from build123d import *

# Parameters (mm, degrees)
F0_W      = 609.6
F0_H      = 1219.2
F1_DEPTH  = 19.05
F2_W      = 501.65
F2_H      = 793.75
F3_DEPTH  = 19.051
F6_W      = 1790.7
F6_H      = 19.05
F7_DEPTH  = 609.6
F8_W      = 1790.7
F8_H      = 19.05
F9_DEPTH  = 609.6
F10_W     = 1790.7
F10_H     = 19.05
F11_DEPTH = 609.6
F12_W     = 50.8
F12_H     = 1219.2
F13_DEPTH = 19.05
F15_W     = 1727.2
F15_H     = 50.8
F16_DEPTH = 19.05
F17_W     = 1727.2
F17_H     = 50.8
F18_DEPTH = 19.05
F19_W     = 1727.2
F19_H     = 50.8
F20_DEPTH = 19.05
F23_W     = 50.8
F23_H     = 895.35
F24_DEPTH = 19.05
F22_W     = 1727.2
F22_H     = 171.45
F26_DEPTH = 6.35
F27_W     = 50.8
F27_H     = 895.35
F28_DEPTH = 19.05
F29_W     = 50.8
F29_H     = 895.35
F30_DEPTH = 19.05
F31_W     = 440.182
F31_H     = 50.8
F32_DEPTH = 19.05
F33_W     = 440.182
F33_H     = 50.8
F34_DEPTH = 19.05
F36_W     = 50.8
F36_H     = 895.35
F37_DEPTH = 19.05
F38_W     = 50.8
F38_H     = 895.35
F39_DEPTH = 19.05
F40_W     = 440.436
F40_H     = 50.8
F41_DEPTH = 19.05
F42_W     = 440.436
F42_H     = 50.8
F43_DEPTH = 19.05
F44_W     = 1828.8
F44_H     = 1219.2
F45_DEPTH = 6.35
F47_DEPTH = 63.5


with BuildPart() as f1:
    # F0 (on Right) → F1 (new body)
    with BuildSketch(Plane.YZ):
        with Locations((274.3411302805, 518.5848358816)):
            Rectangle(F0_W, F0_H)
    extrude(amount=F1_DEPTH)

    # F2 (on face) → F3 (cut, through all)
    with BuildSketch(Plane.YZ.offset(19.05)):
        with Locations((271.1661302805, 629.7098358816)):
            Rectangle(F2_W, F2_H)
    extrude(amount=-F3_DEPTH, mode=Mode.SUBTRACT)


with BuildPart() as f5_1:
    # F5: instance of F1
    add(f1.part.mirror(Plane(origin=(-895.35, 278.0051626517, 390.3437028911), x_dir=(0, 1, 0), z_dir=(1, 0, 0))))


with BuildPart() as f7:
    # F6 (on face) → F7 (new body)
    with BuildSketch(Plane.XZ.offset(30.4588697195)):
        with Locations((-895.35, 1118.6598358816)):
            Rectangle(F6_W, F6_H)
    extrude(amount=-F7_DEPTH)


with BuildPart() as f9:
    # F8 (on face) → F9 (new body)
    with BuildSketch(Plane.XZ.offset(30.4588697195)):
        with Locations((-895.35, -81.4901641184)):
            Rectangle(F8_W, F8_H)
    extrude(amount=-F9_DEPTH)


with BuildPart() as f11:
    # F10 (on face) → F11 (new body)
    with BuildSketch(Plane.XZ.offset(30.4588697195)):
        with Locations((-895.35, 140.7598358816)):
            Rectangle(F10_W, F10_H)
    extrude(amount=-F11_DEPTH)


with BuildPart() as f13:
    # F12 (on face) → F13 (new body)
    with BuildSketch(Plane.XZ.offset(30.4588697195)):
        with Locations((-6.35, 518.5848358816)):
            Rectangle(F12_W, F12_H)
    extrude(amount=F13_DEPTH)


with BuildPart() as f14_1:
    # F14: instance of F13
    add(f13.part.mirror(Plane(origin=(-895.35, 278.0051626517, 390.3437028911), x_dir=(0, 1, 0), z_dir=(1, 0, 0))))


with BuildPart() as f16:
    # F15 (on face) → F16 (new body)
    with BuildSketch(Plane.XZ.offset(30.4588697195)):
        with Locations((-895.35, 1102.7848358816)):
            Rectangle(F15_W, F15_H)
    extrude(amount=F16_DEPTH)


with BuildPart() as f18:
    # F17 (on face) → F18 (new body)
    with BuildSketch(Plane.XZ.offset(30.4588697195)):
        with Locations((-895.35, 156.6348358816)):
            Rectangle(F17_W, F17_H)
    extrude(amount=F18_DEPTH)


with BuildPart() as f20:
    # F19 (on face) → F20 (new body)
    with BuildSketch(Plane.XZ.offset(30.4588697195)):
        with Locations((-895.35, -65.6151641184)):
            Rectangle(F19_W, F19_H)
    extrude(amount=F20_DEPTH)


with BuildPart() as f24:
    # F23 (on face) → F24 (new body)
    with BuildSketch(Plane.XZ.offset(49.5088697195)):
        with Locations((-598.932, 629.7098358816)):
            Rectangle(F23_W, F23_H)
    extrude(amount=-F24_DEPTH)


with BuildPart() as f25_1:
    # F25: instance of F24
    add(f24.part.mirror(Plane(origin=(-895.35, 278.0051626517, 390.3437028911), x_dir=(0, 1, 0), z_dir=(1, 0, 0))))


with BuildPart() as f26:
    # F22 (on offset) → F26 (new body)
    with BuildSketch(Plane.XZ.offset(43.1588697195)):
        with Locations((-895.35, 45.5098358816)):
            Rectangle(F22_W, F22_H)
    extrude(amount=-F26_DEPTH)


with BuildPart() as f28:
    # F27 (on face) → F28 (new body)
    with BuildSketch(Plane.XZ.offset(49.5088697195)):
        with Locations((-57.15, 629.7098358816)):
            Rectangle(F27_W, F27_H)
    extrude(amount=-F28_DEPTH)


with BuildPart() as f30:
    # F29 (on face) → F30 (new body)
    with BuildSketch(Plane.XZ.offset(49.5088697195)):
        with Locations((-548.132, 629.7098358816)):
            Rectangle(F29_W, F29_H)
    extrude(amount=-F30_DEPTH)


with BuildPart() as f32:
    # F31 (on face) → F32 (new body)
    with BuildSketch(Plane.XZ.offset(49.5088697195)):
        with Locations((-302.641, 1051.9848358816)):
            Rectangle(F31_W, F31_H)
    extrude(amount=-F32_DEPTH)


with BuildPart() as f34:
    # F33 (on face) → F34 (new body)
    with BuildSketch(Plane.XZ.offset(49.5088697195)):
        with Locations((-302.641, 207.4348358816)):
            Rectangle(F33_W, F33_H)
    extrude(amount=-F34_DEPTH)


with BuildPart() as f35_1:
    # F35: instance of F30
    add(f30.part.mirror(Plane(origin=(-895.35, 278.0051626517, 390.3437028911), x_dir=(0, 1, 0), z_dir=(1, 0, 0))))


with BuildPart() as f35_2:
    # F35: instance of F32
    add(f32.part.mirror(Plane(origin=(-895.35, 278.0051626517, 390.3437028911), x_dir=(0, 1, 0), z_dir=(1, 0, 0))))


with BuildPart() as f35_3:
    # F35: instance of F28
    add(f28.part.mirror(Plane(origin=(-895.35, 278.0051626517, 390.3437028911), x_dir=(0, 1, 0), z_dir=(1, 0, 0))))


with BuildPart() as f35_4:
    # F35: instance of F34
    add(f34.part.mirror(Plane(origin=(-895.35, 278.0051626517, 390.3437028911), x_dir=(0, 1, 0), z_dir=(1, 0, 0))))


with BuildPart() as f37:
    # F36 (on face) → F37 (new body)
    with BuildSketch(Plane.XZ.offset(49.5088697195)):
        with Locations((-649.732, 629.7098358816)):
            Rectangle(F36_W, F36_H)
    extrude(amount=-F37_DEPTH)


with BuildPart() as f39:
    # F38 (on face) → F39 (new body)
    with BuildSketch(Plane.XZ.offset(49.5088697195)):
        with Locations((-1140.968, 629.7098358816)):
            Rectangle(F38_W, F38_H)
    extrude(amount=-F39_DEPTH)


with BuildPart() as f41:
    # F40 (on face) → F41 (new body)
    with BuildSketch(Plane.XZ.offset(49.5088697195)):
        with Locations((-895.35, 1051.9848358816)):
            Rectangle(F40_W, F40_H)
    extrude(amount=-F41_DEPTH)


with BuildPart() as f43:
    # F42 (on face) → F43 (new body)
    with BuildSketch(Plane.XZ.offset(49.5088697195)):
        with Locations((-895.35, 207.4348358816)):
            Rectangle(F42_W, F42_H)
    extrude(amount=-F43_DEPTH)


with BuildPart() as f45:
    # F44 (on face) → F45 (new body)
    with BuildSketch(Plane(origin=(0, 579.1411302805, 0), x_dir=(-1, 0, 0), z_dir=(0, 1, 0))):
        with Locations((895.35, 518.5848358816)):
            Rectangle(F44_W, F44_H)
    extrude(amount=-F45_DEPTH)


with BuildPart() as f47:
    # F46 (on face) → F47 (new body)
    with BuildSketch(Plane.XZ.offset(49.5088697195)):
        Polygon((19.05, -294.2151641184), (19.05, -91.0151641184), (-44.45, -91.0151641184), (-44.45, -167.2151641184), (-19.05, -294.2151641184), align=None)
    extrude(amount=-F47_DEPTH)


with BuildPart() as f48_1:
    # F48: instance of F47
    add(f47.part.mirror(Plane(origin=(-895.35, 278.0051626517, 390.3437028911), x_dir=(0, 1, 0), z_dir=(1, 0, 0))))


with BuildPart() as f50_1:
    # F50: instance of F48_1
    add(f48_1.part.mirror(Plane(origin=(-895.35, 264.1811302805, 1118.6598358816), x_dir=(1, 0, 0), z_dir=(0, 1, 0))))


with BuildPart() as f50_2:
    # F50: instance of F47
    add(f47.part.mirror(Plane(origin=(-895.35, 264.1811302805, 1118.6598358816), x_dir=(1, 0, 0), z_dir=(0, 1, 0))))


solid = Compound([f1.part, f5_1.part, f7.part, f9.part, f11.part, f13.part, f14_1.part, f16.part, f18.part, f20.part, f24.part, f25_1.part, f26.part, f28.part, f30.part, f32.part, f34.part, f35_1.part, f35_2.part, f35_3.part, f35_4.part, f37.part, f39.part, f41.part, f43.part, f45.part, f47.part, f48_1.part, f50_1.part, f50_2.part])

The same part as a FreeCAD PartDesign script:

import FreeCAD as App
import Part
import Sketcher

V = App.Vector
Q = App.Units.Quantity


def add_polygon(sketch, points):
    """Adds a closed chain of lines whose ends are joined by coincident constraints."""
    first, n = sketch.GeometryCount, len(points)
    for a, b in zip(points, points[1:] + points[:1]):
        sketch.addGeometry(Part.LineSegment(App.Vector(*a, 0), App.Vector(*b, 0)), False)
    for i in range(n):
        sketch.addConstraint(Sketcher.Constraint("Coincident", first + i, 2, first + (i + 1) % n, 1))

doc = App.newDocument("Part")
body = doc.addObject("PartDesign::Body", "Body")

sketch1 = body.newObject("Sketcher::SketchObject", "Sketch")
sketch1.AttachmentSupport = (doc.getObject("YZ_Plane"), [""])
sketch1.MapMode = "FlatFace"
add_polygon(sketch1, [(-30.45887, 1128.184836), (-30.45887, -91.015164), (579.14113, -91.015164), (579.14113, 1128.184836)])
sketch1.addConstraint(Sketcher.Constraint("Vertical", 0))
sketch1.addConstraint(Sketcher.Constraint("Horizontal", 1))
sketch1.addConstraint(Sketcher.Constraint("Vertical", 2))
sketch1.addConstraint(Sketcher.Constraint("Horizontal", 3))
sketch1.addConstraint(Sketcher.Constraint("DistanceX", 1, 1, 1, 2, Q("24 in")))
sketch1.addConstraint(Sketcher.Constraint("DistanceY", 0, 2, 0, 1, Q("48 in")))
sketch1.addConstraint(Sketcher.Constraint("DistanceX", 0, 2, -1, 1, 30.45887))
sketch1.addConstraint(Sketcher.Constraint("DistanceY", 0, 2, -1, 1, 91.015164))
pad1 = body.newObject("PartDesign::Pad", "Pad")
pad1.Profile = sketch1
pad1.Length = Q("0.75 in")

sketch2 = body.newObject("Sketcher::SketchObject", "Sketch001")
sketch2.AttachmentSupport = (doc.getObject("YZ_Plane"), [""])
sketch2.MapMode = "FlatFace"
sketch2.AttachmentOffset = App.Placement(V(0, 0, 0.75 * 25.4), App.Rotation())
add_polygon(sketch2, [(20.34113, 1026.584836), (20.34113, 232.834836), (521.99113, 232.834836), (521.99113, 1026.584836)])
sketch2.addConstraint(Sketcher.Constraint("Vertical", 0))
sketch2.addConstraint(Sketcher.Constraint("Horizontal", 1))
sketch2.addConstraint(Sketcher.Constraint("Vertical", 2))
sketch2.addConstraint(Sketcher.Constraint("Horizontal", 3))
sketch2.addConstraint(Sketcher.Constraint("DistanceX", 1, 1, 1, 2, Q("19.75 in")))
sketch2.addConstraint(Sketcher.Constraint("DistanceY", 0, 2, 0, 1, Q("31.25 in")))
sketch2.addConstraint(Sketcher.Constraint("DistanceX", -1, 1, 0, 2, 20.34113))
sketch2.addConstraint(Sketcher.Constraint("DistanceY", -1, 1, 0, 2, 232.834836))
pocket1 = body.newObject("PartDesign::Pocket", "Pocket")
pocket1.Profile = sketch2
pocket1.Type = "ThroughAll"
body2 = doc.addObject("PartDesign::Body", "Body001")
doc.recompute()

mirroring = doc.addObject("Part::Mirroring", "Mirroring")
mirroring.Source = body
mirroring.Base = V(-895.35, 278.005163, 390.343703)
mirroring.Normal = V(1, 0, 0)
body2.BaseFeature = mirroring
doc.recompute()
body3 = doc.addObject("PartDesign::Body", "Body002")

sketch3 = body3.newObject("Sketcher::SketchObject", "Sketch002")
sketch3.AttachmentSupport = (doc.getObject("XZ_Plane002"), [""])
sketch3.MapMode = "FlatFace"
sketch3.AttachmentOffset = App.Placement(V(0, 0, 30.45887), App.Rotation())
add_polygon(sketch3, [(-1790.7, 1128.184836), (-1790.7, 1109.134836), (0, 1109.134836), (0, 1128.184836)])
sketch3.addConstraint(Sketcher.Constraint("Vertical", 0))
sketch3.addConstraint(Sketcher.Constraint("Horizontal", 1))
sketch3.addConstraint(Sketcher.Constraint("Vertical", 2))
sketch3.addConstraint(Sketcher.Constraint("Horizontal", 3))
sketch3.addConstraint(Sketcher.Constraint("PointOnObject", 1, 2, -2))
sketch3.addConstraint(Sketcher.Constraint("DistanceX", 1, 1, 1, 2, Q("70.5 in")))
sketch3.addConstraint(Sketcher.Constraint("DistanceY", 0, 2, 0, 1, Q("0.75 in")))
sketch3.addConstraint(Sketcher.Constraint("DistanceY", -1, 1, 0, 2, 1109.134836))
pad2 = body3.newObject("PartDesign::Pad", "Pad001")
pad2.Profile = sketch3
pad2.Length = Q("24 in")
pad2.Reversed = True
body4 = doc.addObject("PartDesign::Body", "Body003")

sketch4 = body4.newObject("Sketcher::SketchObject", "Sketch003")
sketch4.AttachmentSupport = (doc.getObject("XZ_Plane003"), [""])
sketch4.MapMode = "FlatFace"
sketch4.AttachmentOffset = App.Placement(V(0, 0, 30.45887), App.Rotation())
add_polygon(sketch4, [(-1790.7, -71.965164), (-1790.7, -91.015164), (0, -91.015164), (0, -71.965164)])
sketch4.addConstraint(Sketcher.Constraint("Vertical", 0))
sketch4.addConstraint(Sketcher.Constraint("Horizontal", 1))
sketch4.addConstraint(Sketcher.Constraint("Vertical", 2))
sketch4.addConstraint(Sketcher.Constraint("Horizontal", 3))
sketch4.addConstraint(Sketcher.Constraint("PointOnObject", 1, 2, -2))
sketch4.addConstraint(Sketcher.Constraint("DistanceX", 1, 1, 1, 2, Q("70.5 in")))
sketch4.addConstraint(Sketcher.Constraint("DistanceY", 0, 2, 0, 1, Q("0.75 in")))
sketch4.addConstraint(Sketcher.Constraint("DistanceY", 0, 2, -1, 1, 91.015164))
pad3 = body4.newObject("PartDesign::Pad", "Pad002")
pad3.Profile = sketch4
pad3.Length = Q("24 in")
pad3.Reversed = True
body5 = doc.addObject("PartDesign::Body", "Body004")

sketch5 = body5.newObject("Sketcher::SketchObject", "Sketch004")
sketch5.AttachmentSupport = (doc.getObject("XZ_Plane004"), [""])
sketch5.MapMode = "FlatFace"
sketch5.AttachmentOffset = App.Placement(V(0, 0, 30.45887), App.Rotation())
add_polygon(sketch5, [(-1790.7, 150.284836), (-1790.7, 131.234836), (0, 131.234836), (0, 150.284836)])
sketch5.addConstraint(Sketcher.Constraint("Vertical", 0))
sketch5.addConstraint(Sketcher.Constraint("Horizontal", 1))
sketch5.addConstraint(Sketcher.Constraint("Vertical", 2))
sketch5.addConstraint(Sketcher.Constraint("Horizontal", 3))
sketch5.addConstraint(Sketcher.Constraint("PointOnObject", 1, 2, -2))
sketch5.addConstraint(Sketcher.Constraint("DistanceX", 1, 1, 1, 2, Q("70.5 in")))
sketch5.addConstraint(Sketcher.Constraint("DistanceY", 0, 2, 0, 1, Q("0.75 in")))
sketch5.addConstraint(Sketcher.Constraint("DistanceY", -1, 1, 0, 2, 131.234836))
pad4 = body5.newObject("PartDesign::Pad", "Pad003")
pad4.Profile = sketch5
pad4.Length = Q("24 in")
pad4.Reversed = True
body6 = doc.addObject("PartDesign::Body", "Body005")

sketch6 = body6.newObject("Sketcher::SketchObject", "Sketch005")
sketch6.AttachmentSupport = (doc.getObject("XZ_Plane005"), [""])
sketch6.MapMode = "FlatFace"
sketch6.AttachmentOffset = App.Placement(V(0, 0, 30.45887), App.Rotation())
add_polygon(sketch6, [(-31.75, 1128.184836), (-31.75, -91.015164), (19.05, -91.015164), (19.05, 1128.184836)])
sketch6.addConstraint(Sketcher.Constraint("Vertical", 0))
sketch6.addConstraint(Sketcher.Constraint("Horizontal", 1))
sketch6.addConstraint(Sketcher.Constraint("Vertical", 2))
sketch6.addConstraint(Sketcher.Constraint("Horizontal", 3))
sketch6.addConstraint(Sketcher.Constraint("DistanceX", 1, 1, 1, 2, Q("2 in")))
sketch6.addConstraint(Sketcher.Constraint("DistanceY", 0, 2, 0, 1, Q("48 in")))
sketch6.addConstraint(Sketcher.Constraint("DistanceX", 0, 2, -1, 1, Q("1.25 in")))
sketch6.addConstraint(Sketcher.Constraint("DistanceY", 0, 2, -1, 1, 91.015164))
pad5 = body6.newObject("PartDesign::Pad", "Pad004")
pad5.Profile = sketch6
pad5.Length = Q("0.75 in")
body7 = doc.addObject("PartDesign::Body", "Body006")
doc.recompute()

mirroring2 = doc.addObject("Part::Mirroring", "Mirroring001")
mirroring2.Source = body6
mirroring2.Base = V(-895.35, 278.005163, 390.343703)
mirroring2.Normal = V(1, 0, 0)
body7.BaseFeature = mirroring2
doc.recompute()
body8 = doc.addObject("PartDesign::Body", "Body007")

sketch7 = body8.newObject("Sketcher::SketchObject", "Sketch006")
sketch7.AttachmentSupport = (doc.getObject("XZ_Plane007"), [""])
sketch7.MapMode = "FlatFace"
sketch7.AttachmentOffset = App.Placement(V(0, 0, 30.45887), App.Rotation())
add_polygon(sketch7, [(-1758.95, 1128.184836), (-1758.95, 1077.384836), (-31.75, 1077.384836), (-31.75, 1128.184836)])
sketch7.addConstraint(Sketcher.Constraint("Vertical", 0))
sketch7.addConstraint(Sketcher.Constraint("Horizontal", 1))
sketch7.addConstraint(Sketcher.Constraint("Vertical", 2))
sketch7.addConstraint(Sketcher.Constraint("Horizontal", 3))
sketch7.addConstraint(Sketcher.Constraint("DistanceX", 1, 1, 1, 2, Q("68 in")))
sketch7.addConstraint(Sketcher.Constraint("DistanceY", 0, 2, 0, 1, Q("2 in")))
sketch7.addConstraint(Sketcher.Constraint("DistanceX", 0, 2, -1, 1, Q("69.25 in")))
sketch7.addConstraint(Sketcher.Constraint("DistanceY", -1, 1, 0, 2, 1077.384836))
pad6 = body8.newObject("PartDesign::Pad", "Pad005")
pad6.Profile = sketch7
pad6.Length = Q("0.75 in")
body9 = doc.addObject("PartDesign::Body", "Body008")

sketch8 = body9.newObject("Sketcher::SketchObject", "Sketch007")
sketch8.AttachmentSupport = (doc.getObject("XZ_Plane008"), [""])
sketch8.MapMode = "FlatFace"
sketch8.AttachmentOffset = App.Placement(V(0, 0, 30.45887), App.Rotation())
add_polygon(sketch8, [(-1758.95, 182.034836), (-1758.95, 131.234836), (-31.75, 131.234836), (-31.75, 182.034836)])
sketch8.addConstraint(Sketcher.Constraint("Vertical", 0))
sketch8.addConstraint(Sketcher.Constraint("Horizontal", 1))
sketch8.addConstraint(Sketcher.Constraint("Vertical", 2))
sketch8.addConstraint(Sketcher.Constraint("Horizontal", 3))
sketch8.addConstraint(Sketcher.Constraint("DistanceX", 1, 1, 1, 2, Q("68 in")))
sketch8.addConstraint(Sketcher.Constraint("DistanceY", 0, 2, 0, 1, Q("2 in")))
sketch8.addConstraint(Sketcher.Constraint("DistanceX", 0, 2, -1, 1, Q("69.25 in")))
sketch8.addConstraint(Sketcher.Constraint("DistanceY", -1, 1, 0, 2, 131.234836))
pad7 = body9.newObject("PartDesign::Pad", "Pad006")
pad7.Profile = sketch8
pad7.Length = Q("0.75 in")
body10 = doc.addObject("PartDesign::Body", "Body009")

sketch9 = body10.newObject("Sketcher::SketchObject", "Sketch008")
sketch9.AttachmentSupport = (doc.getObject("XZ_Plane009"), [""])
sketch9.MapMode = "FlatFace"
sketch9.AttachmentOffset = App.Placement(V(0, 0, 30.45887), App.Rotation())
add_polygon(sketch9, [(-1758.95, -40.215164), (-1758.95, -91.015164), (-31.75, -91.015164), (-31.75, -40.215164)])
sketch9.addConstraint(Sketcher.Constraint("Vertical", 0))
sketch9.addConstraint(Sketcher.Constraint("Horizontal", 1))
sketch9.addConstraint(Sketcher.Constraint("Vertical", 2))
sketch9.addConstraint(Sketcher.Constraint("Horizontal", 3))
sketch9.addConstraint(Sketcher.Constraint("DistanceX", 1, 1, 1, 2, Q("68 in")))
sketch9.addConstraint(Sketcher.Constraint("DistanceY", 0, 2, 0, 1, Q("2 in")))
sketch9.addConstraint(Sketcher.Constraint("DistanceX", 0, 2, -1, 1, Q("69.25 in")))
sketch9.addConstraint(Sketcher.Constraint("DistanceY", 0, 2, -1, 1, 91.015164))
pad8 = body10.newObject("PartDesign::Pad", "Pad007")
pad8.Profile = sketch9
pad8.Length = Q("0.75 in")
body11 = doc.addObject("PartDesign::Body", "Body010")

sketch10 = body11.newObject("Sketcher::SketchObject", "Sketch009")
sketch10.AttachmentSupport = (doc.getObject("XZ_Plane010"), [""])
sketch10.MapMode = "FlatFace"
sketch10.AttachmentOffset = App.Placement(V(0, 0, 49.50887), App.Rotation())
add_polygon(sketch10, [(-624.332, 1077.384836), (-624.332, 182.034836), (-573.532, 182.034836), (-573.532, 1077.384836)])
sketch10.addConstraint(Sketcher.Constraint("Vertical", 0))
sketch10.addConstraint(Sketcher.Constraint("Horizontal", 1))
sketch10.addConstraint(Sketcher.Constraint("Vertical", 2))
sketch10.addConstraint(Sketcher.Constraint("Horizontal", 3))
sketch10.addConstraint(Sketcher.Constraint("DistanceX", 1, 1, 1, 2, Q("2 in")))
sketch10.addConstraint(Sketcher.Constraint("DistanceY", 0, 2, 0, 1, Q("35.25 in")))
sketch10.addConstraint(Sketcher.Constraint("DistanceX", 0, 2, -1, 1, Q("24.58 in")))
sketch10.addConstraint(Sketcher.Constraint("DistanceY", -1, 1, 0, 2, 182.034836))
pad9 = body11.newObject("PartDesign::Pad", "Pad008")
pad9.Profile = sketch10
pad9.Length = Q("0.75 in")
pad9.Reversed = True
body12 = doc.addObject("PartDesign::Body", "Body011")
doc.recompute()

mirroring3 = doc.addObject("Part::Mirroring", "Mirroring002")
mirroring3.Source = body11
mirroring3.Base = V(-895.35, 278.005163, 390.343703)
mirroring3.Normal = V(1, 0, 0)
body12.BaseFeature = mirroring3
doc.recompute()
body13 = doc.addObject("PartDesign::Body", "Body012")

sketch11 = body13.newObject("Sketcher::SketchObject", "Sketch010")
sketch11.AttachmentSupport = (doc.getObject("XZ_Plane012"), [""])
sketch11.MapMode = "FlatFace"
sketch11.AttachmentOffset = App.Placement(V(0, 0, 43.15887), App.Rotation())
add_polygon(sketch11, [(-1758.95, 131.234836), (-1758.95, -40.215164), (-31.75, -40.215164), (-31.75, 131.234836)])
sketch11.addConstraint(Sketcher.Constraint("Vertical", 0))
sketch11.addConstraint(Sketcher.Constraint("Horizontal", 1))
sketch11.addConstraint(Sketcher.Constraint("Vertical", 2))
sketch11.addConstraint(Sketcher.Constraint("Horizontal", 3))
sketch11.addConstraint(Sketcher.Constraint("DistanceX", 1, 1, 1, 2, Q("68 in")))
sketch11.addConstraint(Sketcher.Constraint("DistanceY", 0, 2, 0, 1, Q("6.75 in")))
sketch11.addConstraint(Sketcher.Constraint("DistanceX", 0, 2, -1, 1, Q("69.25 in")))
sketch11.addConstraint(Sketcher.Constraint("DistanceY", 0, 2, -1, 1, 40.215164))
pad10 = body13.newObject("PartDesign::Pad", "Pad009")
pad10.Profile = sketch11
pad10.Length = Q("0.25 in")
pad10.Reversed = True
body14 = doc.addObject("PartDesign::Body", "Body013")

sketch12 = body14.newObject("Sketcher::SketchObject", "Sketch011")
sketch12.AttachmentSupport = (doc.getObject("XZ_Plane013"), [""])
sketch12.MapMode = "FlatFace"
sketch12.AttachmentOffset = App.Placement(V(0, 0, 49.50887), App.Rotation())
add_polygon(sketch12, [(-82.55, 1077.384836), (-82.55, 182.034836), (-31.75, 182.034836), (-31.75, 1077.384836)])
sketch12.addConstraint(Sketcher.Constraint("Vertical", 0))
sketch12.addConstraint(Sketcher.Constraint("Horizontal", 1))
sketch12.addConstraint(Sketcher.Constraint("Vertical", 2))
sketch12.addConstraint(Sketcher.Constraint("Horizontal", 3))
sketch12.addConstraint(Sketcher.Constraint("DistanceX", 1, 1, 1, 2, Q("2 in")))
sketch12.addConstraint(Sketcher.Constraint("DistanceY", 0, 2, 0, 1, Q("35.25 in")))
sketch12.addConstraint(Sketcher.Constraint("DistanceX", 0, 2, -1, 1, Q("3.25 in")))
sketch12.addConstraint(Sketcher.Constraint("DistanceY", -1, 1, 0, 2, 182.034836))
pad11 = body14.newObject("PartDesign::Pad", "Pad010")
pad11.Profile = sketch12
pad11.Length = Q("0.75 in")
pad11.Reversed = True
body15 = doc.addObject("PartDesign::Body", "Body014")

sketch13 = body15.newObject("Sketcher::SketchObject", "Sketch012")
sketch13.AttachmentSupport = (doc.getObject("XZ_Plane014"), [""])
sketch13.MapMode = "FlatFace"
sketch13.AttachmentOffset = App.Placement(V(0, 0, 49.50887), App.Rotation())
add_polygon(sketch13, [(-573.532, 1077.384836), (-573.532, 182.034836), (-522.732, 182.034836), (-522.732, 1077.384836)])
sketch13.addConstraint(Sketcher.Constraint("Vertical", 0))
sketch13.addConstraint(Sketcher.Constraint("Horizontal", 1))
sketch13.addConstraint(Sketcher.Constraint("Vertical", 2))
sketch13.addConstraint(Sketcher.Constraint("Horizontal", 3))
sketch13.addConstraint(Sketcher.Constraint("DistanceX", 1, 1, 1, 2, Q("2 in")))
sketch13.addConstraint(Sketcher.Constraint("DistanceY", 0, 2, 0, 1, Q("35.25 in")))
sketch13.addConstraint(Sketcher.Constraint("DistanceX", 0, 2, -1, 1, Q("22.58 in")))
sketch13.addConstraint(Sketcher.Constraint("DistanceY", -1, 1, 0, 2, 182.034836))
pad12 = body15.newObject("PartDesign::Pad", "Pad011")
pad12.Profile = sketch13
pad12.Length = Q("0.75 in")
pad12.Reversed = True
body16 = doc.addObject("PartDesign::Body", "Body015")

sketch14 = body16.newObject("Sketcher::SketchObject", "Sketch013")
sketch14.AttachmentSupport = (doc.getObject("XZ_Plane015"), [""])
sketch14.MapMode = "FlatFace"
sketch14.AttachmentOffset = App.Placement(V(0, 0, 49.50887), App.Rotation())
add_polygon(sketch14, [(-522.732, 1077.384836), (-522.732, 1026.584836), (-82.55, 1026.584836), (-82.55, 1077.384836)])
sketch14.addConstraint(Sketcher.Constraint("Vertical", 0))
sketch14.addConstraint(Sketcher.Constraint("Horizontal", 1))
sketch14.addConstraint(Sketcher.Constraint("Vertical", 2))
sketch14.addConstraint(Sketcher.Constraint("Horizontal", 3))
sketch14.addConstraint(Sketcher.Constraint("DistanceY", 0, 2, 0, 1, Q("2 in")))
sketch14.addConstraint(Sketcher.Constraint("DistanceX", 1, 1, 1, 2, Q("17.33 in")))
sketch14.addConstraint(Sketcher.Constraint("DistanceX", 0, 2, -1, 1, Q("20.58 in")))
sketch14.addConstraint(Sketcher.Constraint("DistanceY", -1, 1, 0, 2, 1026.584836))
pad13 = body16.newObject("PartDesign::Pad", "Pad012")
pad13.Profile = sketch14
pad13.Length = Q("0.75 in")
pad13.Reversed = True
body17 = doc.addObject("PartDesign::Body", "Body016")

sketch15 = body17.newObject("Sketcher::SketchObject", "Sketch014")
sketch15.AttachmentSupport = (doc.getObject("XZ_Plane016"), [""])
sketch15.MapMode = "FlatFace"
sketch15.AttachmentOffset = App.Placement(V(0, 0, 49.50887), App.Rotation())
add_polygon(sketch15, [(-522.732, 232.834836), (-522.732, 182.034836), (-82.55, 182.034836), (-82.55, 232.834836)])
sketch15.addConstraint(Sketcher.Constraint("Vertical", 0))
sketch15.addConstraint(Sketcher.Constraint("Horizontal", 1))
sketch15.addConstraint(Sketcher.Constraint("Vertical", 2))
sketch15.addConstraint(Sketcher.Constraint("Horizontal", 3))
sketch15.addConstraint(Sketcher.Constraint("DistanceY", 0, 2, 0, 1, Q("2 in")))
sketch15.addConstraint(Sketcher.Constraint("DistanceX", 1, 1, 1, 2, Q("17.33 in")))
sketch15.addConstraint(Sketcher.Constraint("DistanceX", 0, 2, -1, 1, Q("20.58 in")))
sketch15.addConstraint(Sketcher.Constraint("DistanceY", -1, 1, 0, 2, 182.034836))
pad14 = body17.newObject("PartDesign::Pad", "Pad013")
pad14.Profile = sketch15
pad14.Length = Q("0.75 in")
pad14.Reversed = True
body18 = doc.addObject("PartDesign::Body", "Body017")
doc.recompute()

mirroring4 = doc.addObject("Part::Mirroring", "Mirroring003")
mirroring4.Source = body15
mirroring4.Base = V(-895.35, 278.005163, 390.343703)
mirroring4.Normal = V(1, 0, 0)
body18.BaseFeature = mirroring4
doc.recompute()
body19 = doc.addObject("PartDesign::Body", "Body018")
doc.recompute()

mirroring5 = doc.addObject("Part::Mirroring", "Mirroring004")
mirroring5.Source = body16
mirroring5.Base = V(-895.35, 278.005163, 390.343703)
mirroring5.Normal = V(1, 0, 0)
body19.BaseFeature = mirroring5
doc.recompute()
body20 = doc.addObject("PartDesign::Body", "Body019")
doc.recompute()

mirroring6 = doc.addObject("Part::Mirroring", "Mirroring005")
mirroring6.Source = body14
mirroring6.Base = V(-895.35, 278.005163, 390.343703)
mirroring6.Normal = V(1, 0, 0)
body20.BaseFeature = mirroring6
doc.recompute()
body21 = doc.addObject("PartDesign::Body", "Body020")
doc.recompute()

mirroring7 = doc.addObject("Part::Mirroring", "Mirroring006")
mirroring7.Source = body17
mirroring7.Base = V(-895.35, 278.005163, 390.343703)
mirroring7.Normal = V(1, 0, 0)
body21.BaseFeature = mirroring7
doc.recompute()
body22 = doc.addObject("PartDesign::Body", "Body021")

sketch16 = body22.newObject("Sketcher::SketchObject", "Sketch015")
sketch16.AttachmentSupport = (doc.getObject("XZ_Plane021"), [""])
sketch16.MapMode = "FlatFace"
sketch16.AttachmentOffset = App.Placement(V(0, 0, 49.50887), App.Rotation())
add_polygon(sketch16, [(-675.132, 1077.384836), (-675.132, 182.034836), (-624.332, 182.034836), (-624.332, 1077.384836)])
sketch16.addConstraint(Sketcher.Constraint("Vertical", 0))
sketch16.addConstraint(Sketcher.Constraint("Horizontal", 1))
sketch16.addConstraint(Sketcher.Constraint("Vertical", 2))
sketch16.addConstraint(Sketcher.Constraint("Horizontal", 3))
sketch16.addConstraint(Sketcher.Constraint("DistanceX", 1, 1, 1, 2, Q("2 in")))
sketch16.addConstraint(Sketcher.Constraint("DistanceY", 0, 2, 0, 1, Q("35.25 in")))
sketch16.addConstraint(Sketcher.Constraint("DistanceX", 0, 2, -1, 1, Q("26.58 in")))
sketch16.addConstraint(Sketcher.Constraint("DistanceY", -1, 1, 0, 2, 182.034836))
pad15 = body22.newObject("PartDesign::Pad", "Pad014")
pad15.Profile = sketch16
pad15.Length = Q("0.75 in")
pad15.Reversed = True
body23 = doc.addObject("PartDesign::Body", "Body022")

sketch17 = body23.newObject("Sketcher::SketchObject", "Sketch016")
sketch17.AttachmentSupport = (doc.getObject("XZ_Plane022"), [""])
sketch17.MapMode = "FlatFace"
sketch17.AttachmentOffset = App.Placement(V(0, 0, 49.50887), App.Rotation())
add_polygon(sketch17, [(-1166.368, 1077.384836), (-1166.368, 182.034836), (-1115.568, 182.034836), (-1115.568, 1077.384836)])
sketch17.addConstraint(Sketcher.Constraint("Vertical", 0))
sketch17.addConstraint(Sketcher.Constraint("Horizontal", 1))
sketch17.addConstraint(Sketcher.Constraint("Vertical", 2))
sketch17.addConstraint(Sketcher.Constraint("Horizontal", 3))
sketch17.addConstraint(Sketcher.Constraint("DistanceX", 1, 1, 1, 2, Q("2 in")))
sketch17.addConstraint(Sketcher.Constraint("DistanceY", 0, 2, 0, 1, Q("35.25 in")))
sketch17.addConstraint(Sketcher.Constraint("DistanceX", 0, 2, -1, 1, Q("45.92 in")))
sketch17.addConstraint(Sketcher.Constraint("DistanceY", -1, 1, 0, 2, 182.034836))
pad16 = body23.newObject("PartDesign::Pad", "Pad015")
pad16.Profile = sketch17
pad16.Length = Q("0.75 in")
pad16.Reversed = True
body24 = doc.addObject("PartDesign::Body", "Body023")

sketch18 = body24.newObject("Sketcher::SketchObject", "Sketch017")
sketch18.AttachmentSupport = (doc.getObject("XZ_Plane023"), [""])
sketch18.MapMode = "FlatFace"
sketch18.AttachmentOffset = App.Placement(V(0, 0, 49.50887), App.Rotation())
add_polygon(sketch18, [(-1115.568, 1077.384836), (-1115.568, 1026.584836), (-675.132, 1026.584836), (-675.132, 1077.384836)])
sketch18.addConstraint(Sketcher.Constraint("Vertical", 0))
sketch18.addConstraint(Sketcher.Constraint("Horizontal", 1))
sketch18.addConstraint(Sketcher.Constraint("Vertical", 2))
sketch18.addConstraint(Sketcher.Constraint("Horizontal", 3))
sketch18.addConstraint(Sketcher.Constraint("DistanceY", 0, 2, 0, 1, Q("2 in")))
sketch18.addConstraint(Sketcher.Constraint("DistanceX", 1, 1, 1, 2, Q("17.34 in")))
sketch18.addConstraint(Sketcher.Constraint("DistanceX", 0, 2, -1, 1, Q("43.92 in")))
sketch18.addConstraint(Sketcher.Constraint("DistanceY", -1, 1, 0, 2, 1026.584836))
pad17 = body24.newObject("PartDesign::Pad", "Pad016")
pad17.Profile = sketch18
pad17.Length = Q("0.75 in")
pad17.Reversed = True
body25 = doc.addObject("PartDesign::Body", "Body024")

sketch19 = body25.newObject("Sketcher::SketchObject", "Sketch018")
sketch19.AttachmentSupport = (doc.getObject("XZ_Plane024"), [""])
sketch19.MapMode = "FlatFace"
sketch19.AttachmentOffset = App.Placement(V(0, 0, 49.50887), App.Rotation())
add_polygon(sketch19, [(-1115.568, 232.834836), (-1115.568, 182.034836), (-675.132, 182.034836), (-675.132, 232.834836)])
sketch19.addConstraint(Sketcher.Constraint("Vertical", 0))
sketch19.addConstraint(Sketcher.Constraint("Horizontal", 1))
sketch19.addConstraint(Sketcher.Constraint("Vertical", 2))
sketch19.addConstraint(Sketcher.Constraint("Horizontal", 3))
sketch19.addConstraint(Sketcher.Constraint("DistanceY", 0, 2, 0, 1, Q("2 in")))
sketch19.addConstraint(Sketcher.Constraint("DistanceX", 1, 1, 1, 2, Q("17.34 in")))
sketch19.addConstraint(Sketcher.Constraint("DistanceX", 0, 2, -1, 1, Q("43.92 in")))
sketch19.addConstraint(Sketcher.Constraint("DistanceY", -1, 1, 0, 2, 182.034836))
pad18 = body25.newObject("PartDesign::Pad", "Pad017")
pad18.Profile = sketch19
pad18.Length = Q("0.75 in")
pad18.Reversed = True
body26 = doc.addObject("PartDesign::Body", "Body025")

sketch20 = body26.newObject("Sketcher::SketchObject", "Sketch019")
sketch20.AttachmentSupport = (doc.getObject("XZ_Plane025"), [""])
sketch20.MapMode = "FlatFace"
sketch20.AttachmentOffset = App.Placement(V(0, 0, -579.14113), App.Rotation())
add_polygon(sketch20, [(19.05, 1128.184836), (19.05, -91.015164), (-1809.75, -91.015164), (-1809.75, 1128.184836)])
sketch20.addConstraint(Sketcher.Constraint("Vertical", 0))
sketch20.addConstraint(Sketcher.Constraint("Horizontal", 1))
sketch20.addConstraint(Sketcher.Constraint("Vertical", 2))
sketch20.addConstraint(Sketcher.Constraint("Horizontal", 3))
sketch20.addConstraint(Sketcher.Constraint("DistanceX", 1, 2, 1, 1, Q("72 in")))
sketch20.addConstraint(Sketcher.Constraint("DistanceY", 0, 2, 0, 1, Q("48 in")))
sketch20.addConstraint(Sketcher.Constraint("DistanceX", -1, 1, 0, 2, Q("0.75 in")))
sketch20.addConstraint(Sketcher.Constraint("DistanceY", 0, 2, -1, 1, 91.015164))
pad19 = body26.newObject("PartDesign::Pad", "Pad018")
pad19.Profile = sketch20
pad19.Length = Q("0.25 in")
body27 = doc.addObject("PartDesign::Body", "Body026")

sketch21 = body27.newObject("Sketcher::SketchObject", "Sketch020")
sketch21.AttachmentSupport = (doc.getObject("XZ_Plane026"), [""])
sketch21.MapMode = "FlatFace"
sketch21.AttachmentOffset = App.Placement(V(0, 0, 49.50887), App.Rotation())
add_polygon(sketch21, [(19.05, -294.215164), (19.05, -91.015164), (-44.45, -91.015164), (-44.45, -167.215164), (-19.05, -294.215164)])
sketch21.addConstraint(Sketcher.Constraint("Vertical", 0))
sketch21.addConstraint(Sketcher.Constraint("Horizontal", 1))
sketch21.addConstraint(Sketcher.Constraint("Vertical", 2))
sketch21.addConstraint(Sketcher.Constraint("Horizontal", 4))
sketch21.addConstraint(Sketcher.Constraint("DistanceY", 0, 1, 0, 2, Q("8 in")))
sketch21.addConstraint(Sketcher.Constraint("DistanceY", 2, 2, 2, 1, Q("3 in")))
sketch21.addConstraint(Sketcher.Constraint("DistanceX", 1, 2, 1, 1, Q("2.5 in")))
sketch21.addConstraint(Sketcher.Constraint("DistanceX", 4, 1, 4, 2, Q("1.5 in")))
sketch21.addConstraint(Sketcher.Constraint("DistanceX", -1, 1, 0, 2, Q("0.75 in")))
sketch21.addConstraint(Sketcher.Constraint("DistanceY", 0, 2, -1, 1, 91.015164))
pad20 = body27.newObject("PartDesign::Pad", "Pad019")
pad20.Profile = sketch21
pad20.Length = Q("2.5 in")
pad20.Reversed = True
body28 = doc.addObject("PartDesign::Body", "Body027")
doc.recompute()

mirroring8 = doc.addObject("Part::Mirroring", "Mirroring007")
mirroring8.Source = body27
mirroring8.Base = V(-895.35, 278.005163, 390.343703)
mirroring8.Normal = V(1, 0, 0)
body28.BaseFeature = mirroring8
doc.recompute()
body29 = doc.addObject("PartDesign::Body", "Body028")
doc.recompute()

mirroring9 = doc.addObject("Part::Mirroring", "Mirroring008")
mirroring9.Source = body28
mirroring9.Base = V(-895.35, 264.18113, 1118.659836)
mirroring9.Normal = V(0, 1, 0)
body29.BaseFeature = mirroring9
doc.recompute()
body30 = doc.addObject("PartDesign::Body", "Body029")
doc.recompute()

mirroring10 = doc.addObject("Part::Mirroring", "Mirroring009")
mirroring10.Source = body27
mirroring10.Base = V(-895.35, 264.18113, 1118.659836)
mirroring10.Normal = V(0, 1, 0)
body30.BaseFeature = mirroring10
doc.recompute()

doc.recompute()
